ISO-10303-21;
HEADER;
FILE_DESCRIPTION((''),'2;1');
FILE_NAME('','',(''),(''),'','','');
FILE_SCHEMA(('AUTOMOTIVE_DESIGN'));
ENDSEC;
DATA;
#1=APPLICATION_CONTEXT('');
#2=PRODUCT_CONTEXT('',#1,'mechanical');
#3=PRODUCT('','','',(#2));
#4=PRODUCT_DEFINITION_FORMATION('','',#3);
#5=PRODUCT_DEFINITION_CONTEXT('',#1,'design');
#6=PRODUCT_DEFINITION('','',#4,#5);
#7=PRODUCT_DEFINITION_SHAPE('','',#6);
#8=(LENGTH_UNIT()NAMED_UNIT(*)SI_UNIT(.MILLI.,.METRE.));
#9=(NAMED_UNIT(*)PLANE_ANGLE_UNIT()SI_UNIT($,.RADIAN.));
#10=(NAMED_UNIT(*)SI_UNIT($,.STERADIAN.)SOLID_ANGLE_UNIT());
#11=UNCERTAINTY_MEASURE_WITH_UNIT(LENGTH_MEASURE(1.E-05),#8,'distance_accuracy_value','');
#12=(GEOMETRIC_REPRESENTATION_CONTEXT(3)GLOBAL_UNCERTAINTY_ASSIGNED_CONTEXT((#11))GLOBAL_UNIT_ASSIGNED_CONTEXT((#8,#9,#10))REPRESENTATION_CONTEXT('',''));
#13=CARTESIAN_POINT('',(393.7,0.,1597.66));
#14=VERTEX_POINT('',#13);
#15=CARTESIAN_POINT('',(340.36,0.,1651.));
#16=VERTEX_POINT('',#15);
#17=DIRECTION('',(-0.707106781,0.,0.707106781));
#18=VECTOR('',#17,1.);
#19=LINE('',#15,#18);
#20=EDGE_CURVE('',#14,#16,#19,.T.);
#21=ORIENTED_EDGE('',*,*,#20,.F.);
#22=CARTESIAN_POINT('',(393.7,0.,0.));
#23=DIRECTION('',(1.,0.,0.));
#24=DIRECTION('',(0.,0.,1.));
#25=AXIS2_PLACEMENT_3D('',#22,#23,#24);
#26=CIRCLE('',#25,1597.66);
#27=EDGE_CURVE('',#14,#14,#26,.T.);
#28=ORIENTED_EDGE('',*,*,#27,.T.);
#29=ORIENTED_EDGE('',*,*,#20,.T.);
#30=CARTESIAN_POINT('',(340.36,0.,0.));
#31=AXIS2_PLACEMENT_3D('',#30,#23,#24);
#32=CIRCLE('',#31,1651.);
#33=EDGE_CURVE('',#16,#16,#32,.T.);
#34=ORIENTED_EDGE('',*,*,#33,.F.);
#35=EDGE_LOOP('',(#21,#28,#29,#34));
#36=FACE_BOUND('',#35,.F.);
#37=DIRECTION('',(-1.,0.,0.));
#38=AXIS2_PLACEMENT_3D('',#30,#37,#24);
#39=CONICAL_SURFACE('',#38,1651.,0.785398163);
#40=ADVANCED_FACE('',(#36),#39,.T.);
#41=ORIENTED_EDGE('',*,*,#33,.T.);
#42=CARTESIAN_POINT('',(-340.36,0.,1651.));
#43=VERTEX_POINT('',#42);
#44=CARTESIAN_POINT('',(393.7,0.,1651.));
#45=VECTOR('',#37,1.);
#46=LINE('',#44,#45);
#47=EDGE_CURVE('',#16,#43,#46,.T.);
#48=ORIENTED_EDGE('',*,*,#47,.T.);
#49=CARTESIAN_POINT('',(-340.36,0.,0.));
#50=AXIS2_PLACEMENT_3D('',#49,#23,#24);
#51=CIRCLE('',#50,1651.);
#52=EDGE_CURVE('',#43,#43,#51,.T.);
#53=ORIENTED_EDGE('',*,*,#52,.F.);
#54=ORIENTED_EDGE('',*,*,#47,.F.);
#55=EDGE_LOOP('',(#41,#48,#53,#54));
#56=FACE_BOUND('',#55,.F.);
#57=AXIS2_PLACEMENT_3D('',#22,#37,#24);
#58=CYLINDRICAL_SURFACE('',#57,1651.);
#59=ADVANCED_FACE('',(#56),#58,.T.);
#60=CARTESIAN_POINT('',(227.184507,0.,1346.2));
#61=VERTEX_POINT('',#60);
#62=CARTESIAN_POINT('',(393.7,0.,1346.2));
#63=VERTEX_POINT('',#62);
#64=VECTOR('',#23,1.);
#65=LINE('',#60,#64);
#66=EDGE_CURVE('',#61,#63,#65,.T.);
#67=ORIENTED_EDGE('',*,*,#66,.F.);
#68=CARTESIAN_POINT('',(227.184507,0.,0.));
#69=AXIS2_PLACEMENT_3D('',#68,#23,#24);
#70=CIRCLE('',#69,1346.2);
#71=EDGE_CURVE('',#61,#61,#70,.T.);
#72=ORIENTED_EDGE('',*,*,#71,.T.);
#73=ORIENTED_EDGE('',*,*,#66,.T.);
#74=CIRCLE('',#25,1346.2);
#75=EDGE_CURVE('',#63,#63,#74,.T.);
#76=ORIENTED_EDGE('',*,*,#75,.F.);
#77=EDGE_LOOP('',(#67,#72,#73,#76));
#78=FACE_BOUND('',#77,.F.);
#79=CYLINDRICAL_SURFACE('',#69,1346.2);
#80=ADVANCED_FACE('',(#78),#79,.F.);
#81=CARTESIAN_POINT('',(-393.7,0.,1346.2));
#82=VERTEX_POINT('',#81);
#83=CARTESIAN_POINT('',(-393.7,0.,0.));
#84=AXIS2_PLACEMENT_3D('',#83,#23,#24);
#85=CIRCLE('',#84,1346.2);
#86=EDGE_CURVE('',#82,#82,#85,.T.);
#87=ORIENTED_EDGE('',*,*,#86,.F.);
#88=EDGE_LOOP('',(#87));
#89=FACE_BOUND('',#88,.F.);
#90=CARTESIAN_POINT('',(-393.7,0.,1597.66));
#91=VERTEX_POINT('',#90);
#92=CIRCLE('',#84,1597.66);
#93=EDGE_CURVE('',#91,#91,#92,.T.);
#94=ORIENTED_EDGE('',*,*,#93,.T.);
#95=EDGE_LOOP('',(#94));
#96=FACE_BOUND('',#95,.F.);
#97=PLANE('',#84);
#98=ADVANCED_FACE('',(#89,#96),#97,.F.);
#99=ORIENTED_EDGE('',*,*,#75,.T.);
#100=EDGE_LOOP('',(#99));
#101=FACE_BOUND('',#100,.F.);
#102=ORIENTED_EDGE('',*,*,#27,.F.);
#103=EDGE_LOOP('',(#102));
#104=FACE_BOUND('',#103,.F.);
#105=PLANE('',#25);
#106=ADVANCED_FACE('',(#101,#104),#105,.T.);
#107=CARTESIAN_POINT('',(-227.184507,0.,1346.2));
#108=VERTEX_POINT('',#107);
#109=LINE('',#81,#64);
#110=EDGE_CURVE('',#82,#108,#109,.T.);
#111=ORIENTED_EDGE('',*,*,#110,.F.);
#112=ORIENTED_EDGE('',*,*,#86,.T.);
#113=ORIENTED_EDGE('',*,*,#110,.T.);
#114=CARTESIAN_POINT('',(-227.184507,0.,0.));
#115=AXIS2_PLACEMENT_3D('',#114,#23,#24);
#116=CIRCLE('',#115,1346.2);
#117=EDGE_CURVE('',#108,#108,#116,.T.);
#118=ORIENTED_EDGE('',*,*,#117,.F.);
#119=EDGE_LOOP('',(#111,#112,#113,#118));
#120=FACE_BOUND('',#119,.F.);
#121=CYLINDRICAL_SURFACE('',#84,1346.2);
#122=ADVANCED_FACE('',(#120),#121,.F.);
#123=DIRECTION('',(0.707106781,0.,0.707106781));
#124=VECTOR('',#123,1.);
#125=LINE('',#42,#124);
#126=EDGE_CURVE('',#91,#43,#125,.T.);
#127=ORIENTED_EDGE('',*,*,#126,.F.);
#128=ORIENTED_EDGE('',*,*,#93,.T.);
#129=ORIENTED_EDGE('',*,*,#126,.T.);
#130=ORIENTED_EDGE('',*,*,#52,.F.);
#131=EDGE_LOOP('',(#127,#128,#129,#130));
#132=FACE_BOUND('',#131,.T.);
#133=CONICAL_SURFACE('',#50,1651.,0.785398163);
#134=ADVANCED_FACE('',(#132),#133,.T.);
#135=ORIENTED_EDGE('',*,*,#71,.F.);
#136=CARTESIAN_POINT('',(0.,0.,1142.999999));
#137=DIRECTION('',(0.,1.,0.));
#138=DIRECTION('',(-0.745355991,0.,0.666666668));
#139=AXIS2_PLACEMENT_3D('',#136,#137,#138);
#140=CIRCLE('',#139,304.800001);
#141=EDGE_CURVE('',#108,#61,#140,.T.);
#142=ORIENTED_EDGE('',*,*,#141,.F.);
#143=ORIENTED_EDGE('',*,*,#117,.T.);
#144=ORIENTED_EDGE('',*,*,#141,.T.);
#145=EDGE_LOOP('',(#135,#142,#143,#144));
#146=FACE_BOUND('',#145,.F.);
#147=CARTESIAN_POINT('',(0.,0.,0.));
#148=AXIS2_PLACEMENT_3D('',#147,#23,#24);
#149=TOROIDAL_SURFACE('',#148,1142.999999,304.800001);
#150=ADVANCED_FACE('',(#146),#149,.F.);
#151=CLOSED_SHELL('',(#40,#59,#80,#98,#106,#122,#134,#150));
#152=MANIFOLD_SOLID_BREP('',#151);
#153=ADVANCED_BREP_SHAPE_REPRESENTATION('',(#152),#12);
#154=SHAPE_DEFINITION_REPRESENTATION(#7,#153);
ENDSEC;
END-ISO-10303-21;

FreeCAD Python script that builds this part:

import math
import FreeCAD as App
import Part
import Sketcher
from FreeCAD import Vector
Q = App.Units.Quantity


def edges_at(feature, points):
    """Names of the edges that pass closest to the given points."""
    edges = feature.Shape.Edges
    near = lambda p: min(range(len(edges)), key=lambda i: edges[i].distToShape(Part.Vertex(*p))[0])
    return sorted({f"Edge{near(p) + 1}" for p in points})

doc = App.newDocument("Part")
body = doc.addObject("PartDesign::Body", "Body")

# Sketch on XZ plane
sketch1 = doc.addObject("Sketcher::SketchObject", "Sketch")
body.addObject(sketch1)
sketch1.AttachmentSupport = (doc.XZ_Plane, [""])
sketch1.MapMode = "FlatFace"
sketch1.addGeometry(Part.LineSegment(Vector(-394, 1651, 0), Vector(-394, 1346, 0)), False)
sketch1.addGeometry(Part.LineSegment(Vector(-394, 1346, 0), Vector(-227, 1346, 0)), False)
sketch1.addGeometry(Part.ArcOfCircle(Part.Circle(Vector(0, 1143, 0), Vector(0, 0, 1), 305), math.radians(42), math.radians(138)), False)
sketch1.addGeometry(Part.LineSegment(Vector(227, 1346, 0), Vector(394, 1346, 0)), False)
sketch1.addGeometry(Part.LineSegment(Vector(394, 1346, 0), Vector(394, 1651, 0)), False)
sketch1.addGeometry(Part.LineSegment(Vector(394, 1651, 0), Vector(-394, 1651, 0)), False)
sketch1.addConstraint(Sketcher.Constraint("Coincident", 0, 2, 1, 1))
sketch1.addConstraint(Sketcher.Constraint("Coincident", 1, 2, 2, 2))
sketch1.addConstraint(Sketcher.Constraint("Coincident", 2, 1, 3, 1))
sketch1.addConstraint(Sketcher.Constraint("Coincident", 3, 2, 4, 1))
sketch1.addConstraint(Sketcher.Constraint("Coincident", 4, 2, 5, 1))
sketch1.addConstraint(Sketcher.Constraint("Coincident", 5, 2, 0, 1))
sketch1.addConstraint(Sketcher.Constraint("Vertical", 0))
sketch1.addConstraint(Sketcher.Constraint("Horizontal", 1))
sketch1.addConstraint(Sketcher.Constraint("Horizontal", 3))
sketch1.addConstraint(Sketcher.Constraint("Vertical", 4))
sketch1.addConstraint(Sketcher.Constraint("Horizontal", 5))
sketch1.addConstraint(Sketcher.Constraint("Symmetric", 1, 2, 2, 1, -2))
sketch1.addConstraint(Sketcher.Constraint("Equal", 1, 3))
sketch1.addConstraint(Sketcher.Constraint("Radius", 2, Q("12 in")))
sketch1.addConstraint(Sketcher.Constraint("DistanceX", 5, 2, 5, 1, Q("31 in")))
sketch1.addConstraint(Sketcher.Constraint("DistanceY", 0, 2, 0, 1, Q("12 in")))
sketch1.addConstraint(Sketcher.Constraint("DistanceY", -1, 1, 2, 3, Q("45 in")))
sketch1.addConstraint(Sketcher.Constraint("DistanceY", -1, 1, 0, 2, Q("53 in")))
revolution = doc.addObject("PartDesign::Revolution", "Revolution")
body.addObject(revolution)
revolution.Profile = sketch1
revolution.ReferenceAxis = (sketch1, ["H_Axis"])
revolution.Angle = 360
doc.recompute()

chamfer = doc.addObject("PartDesign::Chamfer", "Chamfer")
body.addObject(chamfer)
chamfer.Base = (revolution, edges_at(revolution, [(393.7, 0, -1651), (-393.7, 0, -1651), (0, 0, 1651)]))
chamfer.Size = Q("2.1 in")

doc.recompute()
